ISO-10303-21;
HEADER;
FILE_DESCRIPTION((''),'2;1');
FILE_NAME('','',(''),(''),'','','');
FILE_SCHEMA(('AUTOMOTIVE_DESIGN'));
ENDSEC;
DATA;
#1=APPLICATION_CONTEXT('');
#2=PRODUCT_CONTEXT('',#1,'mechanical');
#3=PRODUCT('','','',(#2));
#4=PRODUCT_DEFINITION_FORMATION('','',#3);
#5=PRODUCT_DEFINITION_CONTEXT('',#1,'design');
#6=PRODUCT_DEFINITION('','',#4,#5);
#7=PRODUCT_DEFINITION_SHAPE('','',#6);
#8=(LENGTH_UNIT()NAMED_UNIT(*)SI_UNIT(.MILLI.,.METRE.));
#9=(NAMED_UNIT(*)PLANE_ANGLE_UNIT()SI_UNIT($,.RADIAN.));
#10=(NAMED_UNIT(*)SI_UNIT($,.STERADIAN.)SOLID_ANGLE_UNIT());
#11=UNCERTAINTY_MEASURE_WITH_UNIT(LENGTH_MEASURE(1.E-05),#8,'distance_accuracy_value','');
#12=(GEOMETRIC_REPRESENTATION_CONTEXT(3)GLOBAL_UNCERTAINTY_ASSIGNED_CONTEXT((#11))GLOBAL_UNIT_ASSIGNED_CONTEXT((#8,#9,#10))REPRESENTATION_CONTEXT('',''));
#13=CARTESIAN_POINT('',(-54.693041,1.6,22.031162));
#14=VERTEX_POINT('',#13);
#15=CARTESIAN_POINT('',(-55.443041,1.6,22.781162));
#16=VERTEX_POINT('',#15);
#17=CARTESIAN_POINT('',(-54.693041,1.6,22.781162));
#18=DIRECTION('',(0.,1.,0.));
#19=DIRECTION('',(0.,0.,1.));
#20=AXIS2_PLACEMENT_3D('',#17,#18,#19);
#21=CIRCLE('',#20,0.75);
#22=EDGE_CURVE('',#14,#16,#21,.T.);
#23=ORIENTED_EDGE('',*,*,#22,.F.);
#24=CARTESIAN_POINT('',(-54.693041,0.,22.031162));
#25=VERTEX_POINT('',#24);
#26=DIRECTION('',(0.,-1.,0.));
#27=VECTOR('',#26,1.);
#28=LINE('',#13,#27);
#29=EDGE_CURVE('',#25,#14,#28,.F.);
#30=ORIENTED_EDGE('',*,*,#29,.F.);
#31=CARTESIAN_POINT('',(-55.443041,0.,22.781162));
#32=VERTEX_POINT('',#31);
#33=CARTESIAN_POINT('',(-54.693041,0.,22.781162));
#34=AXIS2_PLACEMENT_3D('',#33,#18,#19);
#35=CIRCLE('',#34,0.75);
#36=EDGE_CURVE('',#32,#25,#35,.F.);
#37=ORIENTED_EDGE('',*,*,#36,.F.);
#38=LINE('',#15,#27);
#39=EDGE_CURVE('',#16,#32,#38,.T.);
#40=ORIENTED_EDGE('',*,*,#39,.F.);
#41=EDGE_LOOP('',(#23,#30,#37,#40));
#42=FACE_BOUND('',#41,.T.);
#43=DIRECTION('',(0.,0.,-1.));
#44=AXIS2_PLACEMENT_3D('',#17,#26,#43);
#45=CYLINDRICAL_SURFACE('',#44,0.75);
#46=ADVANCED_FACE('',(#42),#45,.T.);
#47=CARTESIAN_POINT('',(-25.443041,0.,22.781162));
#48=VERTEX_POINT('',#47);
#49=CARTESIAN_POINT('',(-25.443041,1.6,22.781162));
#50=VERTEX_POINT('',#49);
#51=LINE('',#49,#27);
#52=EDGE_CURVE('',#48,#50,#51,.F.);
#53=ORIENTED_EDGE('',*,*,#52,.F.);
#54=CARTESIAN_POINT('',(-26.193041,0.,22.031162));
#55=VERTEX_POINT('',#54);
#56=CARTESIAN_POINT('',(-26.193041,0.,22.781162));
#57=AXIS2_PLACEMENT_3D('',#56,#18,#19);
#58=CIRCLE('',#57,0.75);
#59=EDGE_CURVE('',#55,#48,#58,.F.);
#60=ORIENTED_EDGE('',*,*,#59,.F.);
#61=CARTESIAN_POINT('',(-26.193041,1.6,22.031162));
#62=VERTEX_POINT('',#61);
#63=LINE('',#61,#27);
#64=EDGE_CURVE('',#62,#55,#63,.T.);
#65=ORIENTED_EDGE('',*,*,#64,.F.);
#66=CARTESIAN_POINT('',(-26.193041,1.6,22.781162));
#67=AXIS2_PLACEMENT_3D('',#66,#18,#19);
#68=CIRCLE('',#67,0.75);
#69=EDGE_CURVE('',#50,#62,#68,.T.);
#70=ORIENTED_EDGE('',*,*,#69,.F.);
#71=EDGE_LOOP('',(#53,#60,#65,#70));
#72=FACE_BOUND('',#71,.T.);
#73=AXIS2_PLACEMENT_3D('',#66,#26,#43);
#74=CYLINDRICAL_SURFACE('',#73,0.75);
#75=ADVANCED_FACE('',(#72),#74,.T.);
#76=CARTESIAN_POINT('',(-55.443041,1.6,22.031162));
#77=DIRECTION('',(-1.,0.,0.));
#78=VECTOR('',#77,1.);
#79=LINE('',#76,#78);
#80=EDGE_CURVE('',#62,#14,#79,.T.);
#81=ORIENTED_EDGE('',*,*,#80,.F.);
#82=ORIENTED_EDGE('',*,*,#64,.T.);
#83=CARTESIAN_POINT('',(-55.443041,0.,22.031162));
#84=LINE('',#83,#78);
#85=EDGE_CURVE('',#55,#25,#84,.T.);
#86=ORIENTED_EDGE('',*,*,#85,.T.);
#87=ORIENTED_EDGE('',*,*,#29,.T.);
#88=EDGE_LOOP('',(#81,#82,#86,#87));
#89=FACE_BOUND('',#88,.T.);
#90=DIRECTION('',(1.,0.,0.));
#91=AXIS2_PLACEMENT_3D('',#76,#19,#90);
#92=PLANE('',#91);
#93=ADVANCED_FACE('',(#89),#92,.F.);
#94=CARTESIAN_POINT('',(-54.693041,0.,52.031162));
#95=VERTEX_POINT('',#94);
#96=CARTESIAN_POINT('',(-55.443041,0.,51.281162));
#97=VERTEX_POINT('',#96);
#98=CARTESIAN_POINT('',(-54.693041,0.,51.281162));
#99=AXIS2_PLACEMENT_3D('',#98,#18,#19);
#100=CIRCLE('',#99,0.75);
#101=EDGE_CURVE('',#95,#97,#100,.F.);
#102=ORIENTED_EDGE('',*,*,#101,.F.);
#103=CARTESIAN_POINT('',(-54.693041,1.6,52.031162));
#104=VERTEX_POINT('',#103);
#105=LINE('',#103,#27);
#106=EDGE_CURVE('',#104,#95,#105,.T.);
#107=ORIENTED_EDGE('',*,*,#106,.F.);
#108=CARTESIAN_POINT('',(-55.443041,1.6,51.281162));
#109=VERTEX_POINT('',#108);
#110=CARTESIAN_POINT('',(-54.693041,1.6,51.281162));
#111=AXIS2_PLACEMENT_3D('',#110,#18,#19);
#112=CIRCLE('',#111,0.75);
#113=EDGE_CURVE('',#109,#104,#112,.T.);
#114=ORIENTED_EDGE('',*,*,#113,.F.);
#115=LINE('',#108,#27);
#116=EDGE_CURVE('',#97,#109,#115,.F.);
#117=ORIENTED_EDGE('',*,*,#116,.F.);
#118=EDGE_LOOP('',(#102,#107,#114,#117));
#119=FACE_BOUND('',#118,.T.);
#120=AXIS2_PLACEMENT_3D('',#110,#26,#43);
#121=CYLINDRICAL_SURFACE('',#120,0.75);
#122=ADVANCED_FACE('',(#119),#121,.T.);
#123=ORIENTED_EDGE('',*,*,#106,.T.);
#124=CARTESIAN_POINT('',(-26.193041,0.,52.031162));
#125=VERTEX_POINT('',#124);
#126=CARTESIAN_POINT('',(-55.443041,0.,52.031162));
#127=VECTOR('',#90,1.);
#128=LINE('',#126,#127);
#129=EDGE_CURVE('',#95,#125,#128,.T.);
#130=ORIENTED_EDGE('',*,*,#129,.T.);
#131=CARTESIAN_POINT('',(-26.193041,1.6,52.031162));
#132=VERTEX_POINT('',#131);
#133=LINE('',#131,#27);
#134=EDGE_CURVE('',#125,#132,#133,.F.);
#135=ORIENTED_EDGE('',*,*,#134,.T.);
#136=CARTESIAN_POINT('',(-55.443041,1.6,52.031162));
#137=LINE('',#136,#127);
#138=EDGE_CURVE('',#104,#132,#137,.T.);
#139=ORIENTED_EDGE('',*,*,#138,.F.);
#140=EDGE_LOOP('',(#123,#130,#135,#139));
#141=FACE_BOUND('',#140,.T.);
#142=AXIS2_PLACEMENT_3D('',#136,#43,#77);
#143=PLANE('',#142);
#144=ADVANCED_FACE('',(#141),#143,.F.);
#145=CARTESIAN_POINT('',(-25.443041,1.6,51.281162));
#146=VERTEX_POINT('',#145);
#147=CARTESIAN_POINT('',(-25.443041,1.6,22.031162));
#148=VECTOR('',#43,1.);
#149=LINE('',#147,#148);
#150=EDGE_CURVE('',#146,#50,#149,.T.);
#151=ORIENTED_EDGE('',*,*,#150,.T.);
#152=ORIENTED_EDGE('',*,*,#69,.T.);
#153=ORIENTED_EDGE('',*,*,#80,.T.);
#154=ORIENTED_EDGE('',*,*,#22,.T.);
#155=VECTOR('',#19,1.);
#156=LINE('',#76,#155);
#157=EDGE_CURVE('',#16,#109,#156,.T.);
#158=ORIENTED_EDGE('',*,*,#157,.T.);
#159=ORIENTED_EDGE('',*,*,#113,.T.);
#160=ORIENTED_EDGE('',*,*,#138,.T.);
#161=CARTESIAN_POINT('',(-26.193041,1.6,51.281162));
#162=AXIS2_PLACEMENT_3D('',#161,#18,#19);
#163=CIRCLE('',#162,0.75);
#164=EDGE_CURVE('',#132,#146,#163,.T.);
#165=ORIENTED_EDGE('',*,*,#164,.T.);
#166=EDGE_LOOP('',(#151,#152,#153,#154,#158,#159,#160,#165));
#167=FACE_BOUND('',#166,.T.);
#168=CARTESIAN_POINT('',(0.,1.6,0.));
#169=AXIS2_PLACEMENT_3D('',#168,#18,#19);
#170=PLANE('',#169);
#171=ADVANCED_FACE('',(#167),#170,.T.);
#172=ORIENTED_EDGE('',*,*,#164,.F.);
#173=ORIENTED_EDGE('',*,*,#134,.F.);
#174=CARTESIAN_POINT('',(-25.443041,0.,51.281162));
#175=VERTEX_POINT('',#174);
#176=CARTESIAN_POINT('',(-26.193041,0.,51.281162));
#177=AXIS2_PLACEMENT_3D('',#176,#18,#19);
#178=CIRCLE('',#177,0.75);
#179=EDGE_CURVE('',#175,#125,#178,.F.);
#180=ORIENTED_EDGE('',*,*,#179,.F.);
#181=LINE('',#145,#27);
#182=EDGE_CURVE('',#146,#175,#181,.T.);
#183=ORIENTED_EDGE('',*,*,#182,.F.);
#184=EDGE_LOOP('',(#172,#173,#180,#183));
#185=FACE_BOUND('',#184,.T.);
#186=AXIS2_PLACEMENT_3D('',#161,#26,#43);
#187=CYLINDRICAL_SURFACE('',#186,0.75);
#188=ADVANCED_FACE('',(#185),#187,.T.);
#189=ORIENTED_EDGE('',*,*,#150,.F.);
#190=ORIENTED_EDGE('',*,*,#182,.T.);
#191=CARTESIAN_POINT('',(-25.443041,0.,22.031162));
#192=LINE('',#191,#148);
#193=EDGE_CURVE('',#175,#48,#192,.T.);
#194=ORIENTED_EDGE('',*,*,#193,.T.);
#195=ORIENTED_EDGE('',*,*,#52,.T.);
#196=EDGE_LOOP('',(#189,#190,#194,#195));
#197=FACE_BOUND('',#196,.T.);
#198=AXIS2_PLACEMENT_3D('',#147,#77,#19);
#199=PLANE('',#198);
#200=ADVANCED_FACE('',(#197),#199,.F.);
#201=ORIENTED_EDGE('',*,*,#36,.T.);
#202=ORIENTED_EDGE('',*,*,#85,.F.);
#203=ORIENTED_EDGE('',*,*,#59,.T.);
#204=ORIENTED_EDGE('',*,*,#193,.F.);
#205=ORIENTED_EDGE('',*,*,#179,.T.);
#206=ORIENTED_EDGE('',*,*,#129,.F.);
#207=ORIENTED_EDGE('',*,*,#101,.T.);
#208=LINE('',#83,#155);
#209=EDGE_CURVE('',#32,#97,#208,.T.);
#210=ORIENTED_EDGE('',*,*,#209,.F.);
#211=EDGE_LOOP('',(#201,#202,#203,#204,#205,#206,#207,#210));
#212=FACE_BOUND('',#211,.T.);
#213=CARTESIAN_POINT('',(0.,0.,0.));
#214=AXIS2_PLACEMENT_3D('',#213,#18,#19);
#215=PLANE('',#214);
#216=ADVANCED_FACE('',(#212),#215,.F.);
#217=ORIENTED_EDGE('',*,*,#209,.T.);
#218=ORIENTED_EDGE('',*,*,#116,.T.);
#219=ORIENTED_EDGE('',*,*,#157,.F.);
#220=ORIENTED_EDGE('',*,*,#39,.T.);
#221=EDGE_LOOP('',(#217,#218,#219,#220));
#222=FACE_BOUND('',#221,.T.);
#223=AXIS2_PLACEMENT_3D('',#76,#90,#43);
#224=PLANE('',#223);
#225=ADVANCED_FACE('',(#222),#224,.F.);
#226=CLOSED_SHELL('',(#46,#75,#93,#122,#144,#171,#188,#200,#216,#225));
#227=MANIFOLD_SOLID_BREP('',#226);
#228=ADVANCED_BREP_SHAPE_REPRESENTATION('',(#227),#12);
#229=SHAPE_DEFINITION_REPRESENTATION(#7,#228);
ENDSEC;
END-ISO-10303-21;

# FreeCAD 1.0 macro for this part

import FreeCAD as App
import Part
import Sketcher
Q = App.Units.Quantity


def edges_at(feature, points):
    """Names of the edges that pass closest to the given points."""
    edges = feature.Shape.Edges
    near = lambda p: min(range(len(edges)), key=lambda i: edges[i].distToShape(Part.Vertex(*p))[0])
    return sorted({f"Edge{near(p) + 1}" for p in points})

doc = App.newDocument("Part")
params = doc.addObject("Spreadsheet::Sheet", "Params")
for row, (alias, value) in enumerate([
    ("sketch1_width", "30 mm"),
    ("pad1_length", "1.6 mm"),
    ("fillet_radius", "0.75 mm"),
], start=1):
    params.set(f"A{row}", alias)
    params.set(f"B{row}", "=" + value)
    params.setAlias(f"B{row}", alias)

body = doc.addObject("PartDesign::Body", "Body")

# Sketch on XZ plane
sketch1 = doc.addObject("Sketcher::SketchObject", "Sketch")
body.addObject(sketch1)
sketch1.AttachmentSupport = (doc.XZ_Plane, [""])
sketch1.MapMode = "FlatFace"
sketch1.addGeometry([
    Part.LineSegment(App.Vector(-55, 22, 0), App.Vector(-55, 52, 0)),
    Part.LineSegment(App.Vector(-55, 52, 0), App.Vector(-25, 52, 0)),
    Part.LineSegment(App.Vector(-25, 52, 0), App.Vector(-25, 22, 0)),
    Part.LineSegment(App.Vector(-25, 22, 0), App.Vector(-55, 22, 0)),
], False)
sketch1.addConstraint([
    Sketcher.Constraint("Coincident", 0, 2, 1, 1),
    Sketcher.Constraint("Coincident", 1, 2, 2, 1),
    Sketcher.Constraint("Coincident", 2, 2, 3, 1),
    Sketcher.Constraint("Coincident", 3, 2, 0, 1),
    Sketcher.Constraint("Vertical", 0),
    Sketcher.Constraint("Horizontal", 1),
    Sketcher.Constraint("Vertical", 2),
    Sketcher.Constraint("Horizontal", 3),
    Sketcher.Constraint("Equal", 3, 0),
    Sketcher.Constraint("DistanceX", 1, 1, 1, 2, Q("30 mm")),
    Sketcher.Constraint("DistanceX", 0, 2, -1, 1, Q("55.443041 mm")),
    Sketcher.Constraint("DistanceY", -1, 1, 0, 2, Q("52.031162 mm")),
])
sketch1.setExpression("Constraints[9]", "Params.sketch1_width")
pad1 = doc.addObject("PartDesign::Pad", "Pad")
body.addObject(pad1)
pad1.Profile = sketch1
pad1.setExpression("Length", "Params.pad1_length")
pad1.Reversed = True
doc.recompute()

fillet = doc.addObject("PartDesign::Fillet", "Fillet")
body.addObject(fillet)
fillet.Base = (pad1, edges_at(pad1, [
    (-55.443, 0.8, 22.031),
    (-25.443, 0.8, 22.031),
    (-25.443, 0.8, 52.031),
    (-55.443, 0.8, 52.031),
]))
fillet.setExpression("Radius", "Params.fillet_radius")

doc.recompute()
